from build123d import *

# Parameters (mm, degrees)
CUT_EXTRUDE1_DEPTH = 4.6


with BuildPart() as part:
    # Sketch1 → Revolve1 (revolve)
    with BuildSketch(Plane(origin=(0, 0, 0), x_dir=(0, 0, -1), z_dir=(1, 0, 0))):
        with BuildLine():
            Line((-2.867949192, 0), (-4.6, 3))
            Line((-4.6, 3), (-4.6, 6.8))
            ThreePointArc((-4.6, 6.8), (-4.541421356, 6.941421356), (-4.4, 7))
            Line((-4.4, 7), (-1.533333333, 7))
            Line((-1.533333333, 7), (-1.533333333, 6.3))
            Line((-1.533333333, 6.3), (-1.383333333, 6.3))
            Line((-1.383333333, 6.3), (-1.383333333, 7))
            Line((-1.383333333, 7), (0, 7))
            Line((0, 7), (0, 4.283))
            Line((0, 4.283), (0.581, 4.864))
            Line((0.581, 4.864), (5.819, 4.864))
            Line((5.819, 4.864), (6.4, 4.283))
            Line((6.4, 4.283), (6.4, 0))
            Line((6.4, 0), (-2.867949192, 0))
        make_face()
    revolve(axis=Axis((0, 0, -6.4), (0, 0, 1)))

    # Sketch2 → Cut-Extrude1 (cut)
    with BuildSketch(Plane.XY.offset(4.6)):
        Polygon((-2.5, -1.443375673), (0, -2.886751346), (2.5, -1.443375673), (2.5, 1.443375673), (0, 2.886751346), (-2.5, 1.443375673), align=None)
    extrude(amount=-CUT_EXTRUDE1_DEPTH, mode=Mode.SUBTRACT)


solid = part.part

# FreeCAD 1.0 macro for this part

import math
import FreeCAD as App
import Part
import Sketcher
Q = App.Units.Quantity


def add_polygon(sketch, points):
    """Adds a closed chain of lines whose ends are joined by coincident constraints."""
    first, n = sketch.GeometryCount, len(points)
    for a, b in zip(points, points[1:] + points[:1]):
        sketch.addGeometry(Part.LineSegment(App.Vector(*a, 0), App.Vector(*b, 0)), False)
    for i in range(n):
        sketch.addConstraint(Sketcher.Constraint("Coincident", first + i, 2, first + (i + 1) % n, 1))

doc = App.newDocument("Part")
body = doc.addObject("PartDesign::Body", "Body")

# Sketch on YZ plane
sketch1 = body.newObject("Sketcher::SketchObject", "Sketch")
sketch1.AttachmentSupport = (doc.getObject("YZ_Plane"), [""])
sketch1.MapMode = "FlatFace"
sketch1.addGeometry(Part.LineSegment(App.Vector(3, 4.6, 0), App.Vector(0, 2.867949, 0)), False)
sketch1.addGeometry(Part.LineSegment(App.Vector(0, 2.867949, 0), App.Vector(0, -6.4, 0)), False)
sketch1.addGeometry(Part.LineSegment(App.Vector(0, -6.4, 0), App.Vector(4.283, -6.4, 0)), False)
sketch1.addGeometry(Part.LineSegment(App.Vector(4.283, -6.4, 0), App.Vector(4.864, -5.819, 0)), False)
sketch1.addGeometry(Part.LineSegment(App.Vector(4.864, -5.819, 0), App.Vector(4.864, -0.581, 0)), False)
sketch1.addGeometry(Part.LineSegment(App.Vector(4.864, -0.581, 0), App.Vector(4.283, 0, 0)), False)
sketch1.addGeometry(Part.LineSegment(App.Vector(4.283, 0, 0), App.Vector(7, 0, 0)), False)
sketch1.addGeometry(Part.LineSegment(App.Vector(7, 0, 0), App.Vector(7, 1.383333, 0)), False)
sketch1.addGeometry(Part.LineSegment(App.Vector(7, 1.383333, 0), App.Vector(6.3, 1.383333, 0)), False)
sketch1.addGeometry(Part.LineSegment(App.Vector(6.3, 1.383333, 0), App.Vector(6.3, 1.533333, 0)), False)
sketch1.addGeometry(Part.LineSegment(App.Vector(6.3, 1.533333, 0), App.Vector(7, 1.533333, 0)), False)
sketch1.addGeometry(Part.LineSegment(App.Vector(7, 1.533333, 0), App.Vector(7, 4.4, 0)), False)
sketch1.addGeometry(Part.ArcOfCircle(Part.Circle(App.Vector(6.8, 4.4, 0), App.Vector(0, 0, 1), 0.2), math.radians(0), math.radians(90)), False)
sketch1.addGeometry(Part.LineSegment(App.Vector(6.8, 4.6, 0), App.Vector(3, 4.6, 0)), False)
sketch1.addConstraint(Sketcher.Constraint("Coincident", 0, 2, 1, 1))
sketch1.addConstraint(Sketcher.Constraint("Coincident", 1, 2, 2, 1))
sketch1.addConstraint(Sketcher.Constraint("Coincident", 2, 2, 3, 1))
sketch1.addConstraint(Sketcher.Constraint("Coincident", 3, 2, 4, 1))
sketch1.addConstraint(Sketcher.Constraint("Coincident", 4, 2, 5, 1))
sketch1.addConstraint(Sketcher.Constraint("Coincident", 5, 2, 6, 1))
sketch1.addConstraint(Sketcher.Constraint("Coincident", 6, 2, 7, 1))
sketch1.addConstraint(Sketcher.Constraint("Coincident", 7, 2, 8, 1))
sketch1.addConstraint(Sketcher.Constraint("Coincident", 8, 2, 9, 1))
sketch1.addConstraint(Sketcher.Constraint("Coincident", 9, 2, 10, 1))
sketch1.addConstraint(Sketcher.Constraint("Coincident", 10, 2, 11, 1))
sketch1.addConstraint(Sketcher.Constraint("Tangent", 11, 2, 12, 1))
sketch1.addConstraint(Sketcher.Constraint("Tangent", 12, 2, 13, 1))
sketch1.addConstraint(Sketcher.Constraint("Coincident", 13, 2, 0, 1))
sketch1.addConstraint(Sketcher.Constraint("Vertical", 1))
sketch1.addConstraint(Sketcher.Constraint("Horizontal", 2))
sketch1.addConstraint(Sketcher.Constraint("Vertical", 4))
sketch1.addConstraint(Sketcher.Constraint("Horizontal", 6))
sketch1.addConstraint(Sketcher.Constraint("Vertical", 7))
sketch1.addConstraint(Sketcher.Constraint("Horizontal", 8))
sketch1.addConstraint(Sketcher.Constraint("Vertical", 9))
sketch1.addConstraint(Sketcher.Constraint("Horizontal", 10))
sketch1.addConstraint(Sketcher.Constraint("Vertical", 11))
sketch1.addConstraint(Sketcher.Constraint("Horizontal", 13))
sketch1.addConstraint(Sketcher.Constraint("PointOnObject", 0, 2, -2))
sketch1.addConstraint(Sketcher.Constraint("PointOnObject", 5, 2, -1))
sketch1.addConstraint(Sketcher.Constraint("Perpendicular", 3, 5))
sketch1.addConstraint(Sketcher.Constraint("Vertical", 2, 2, 5, 2))
sketch1.addConstraint(Sketcher.Constraint("Vertical", 7, 2, 10, 2))
sketch1.addConstraint(Sketcher.Constraint("Equal", 3, 5))
sketch1.addConstraint(Sketcher.Constraint("Radius", 12, 0.2))
sketch1.addConstraint(Sketcher.Constraint("Angle", 0, Q("-150 deg")))
sketch1.addConstraint(Sketcher.Constraint("DistanceX", 8, 2, 8, 1, 0.7))
sketch1.addConstraint(Sketcher.Constraint("DistanceX", 13, 2, 13, 1, 3.8))
sketch1.addConstraint(Sketcher.Constraint("DistanceX", -1, 1, 6, 2, 7.0))
sketch1.addConstraint(Sketcher.Constraint("DistanceY", 9, 1, 9, 2, 0.15))
sketch1.addConstraint(Sketcher.Constraint("DistanceY", -1, 1, 12, 3, 4.4))
sketch1.addConstraint(Sketcher.Constraint("DistanceY", 1, 2, -1, 1, 6.4))
sketch1.addConstraint(Sketcher.Constraint("DistanceX", 2, 1, 2, 2, 4.283))
sketch1.addConstraint(Sketcher.Constraint("DistanceY", 4, 1, 4, 2, 5.238))
sketch1.addConstraint(Sketcher.Constraint("DistanceY", 7, 1, 7, 2, 1.383333))
revolution = body.newObject("PartDesign::Revolution", "Revolution")
revolution.Profile = sketch1
revolution.ReferenceAxis = (sketch1, ["V_Axis"])
revolution.Angle = 360

# Sketch on XY plane
sketch2 = body.newObject("Sketcher::SketchObject", "Sketch001")
sketch2.AttachmentSupport = (doc.getObject("XY_Plane"), [""])
sketch2.MapMode = "FlatFace"
sketch2.AttachmentOffset = App.Placement(App.Vector(0, 0, 4.6), App.Rotation())
add_polygon(sketch2, [(-2.5, -1.443376), (0, -2.886751), (2.5, -1.443376), (2.5, 1.443376), (0, 2.886751), (-2.5, 1.443376)])  # lines 0-5
sketch2.addConstraint(Sketcher.Constraint("Vertical", 2))
sketch2.addConstraint(Sketcher.Constraint("Vertical", 5))
sketch2.addConstraint(Sketcher.Constraint("Symmetric", 0, 2, 3, 2, -1, 1))
sketch2.addConstraint(Sketcher.Constraint("Symmetric", 1, 2, 4, 2, -1, 1))
sketch2.addConstraint(Sketcher.Constraint("PointOnObject", 0, 2, -2))
sketch2.addConstraint(Sketcher.Constraint("Parallel", 0, 3))
sketch2.addConstraint(Sketcher.Constraint("Horizontal", 2, 2, 4, 2))
sketch2.addConstraint(Sketcher.Constraint("Angle", 0, Q("-30 deg")))
sketch2.addConstraint(Sketcher.Constraint("DistanceX", 4, 2, 2, 2, 5.0))
sketch2.addConstraint(Sketcher.Constraint("DistanceY", 2, 1, 2, 2, 2.886751))
pocket1 = body.newObject("PartDesign::Pocket", "Pocket")
pocket1.Profile = sketch2
pocket1.Length = 4.6

doc.recompute()
